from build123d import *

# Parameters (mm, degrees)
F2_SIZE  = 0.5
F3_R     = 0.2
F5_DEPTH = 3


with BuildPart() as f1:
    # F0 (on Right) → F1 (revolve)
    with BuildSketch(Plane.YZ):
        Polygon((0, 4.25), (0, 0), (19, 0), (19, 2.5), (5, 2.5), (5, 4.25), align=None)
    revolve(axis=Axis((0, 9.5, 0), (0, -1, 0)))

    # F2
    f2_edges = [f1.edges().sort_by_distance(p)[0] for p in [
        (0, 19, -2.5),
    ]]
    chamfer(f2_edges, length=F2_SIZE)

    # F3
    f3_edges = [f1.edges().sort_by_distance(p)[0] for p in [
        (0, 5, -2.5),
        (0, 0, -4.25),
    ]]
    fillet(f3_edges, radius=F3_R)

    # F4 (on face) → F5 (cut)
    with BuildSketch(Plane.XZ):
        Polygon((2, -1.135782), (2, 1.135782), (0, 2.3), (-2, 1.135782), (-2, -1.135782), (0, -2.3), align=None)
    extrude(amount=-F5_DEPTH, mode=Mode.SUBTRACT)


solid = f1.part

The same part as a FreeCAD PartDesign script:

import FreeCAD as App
import Part
import Sketcher
Q = App.Units.Quantity


def edges_at(feature, points):
    """Names of the edges that pass closest to the given points."""
    edges = feature.Shape.Edges
    near = lambda p: min(range(len(edges)), key=lambda i: edges[i].distToShape(Part.Vertex(*p))[0])
    return sorted({f"Edge{near(p) + 1}" for p in points})

doc = App.newDocument("Part")
body = doc.addObject("PartDesign::Body", "Body")

# Sketch on YZ plane
sketch1 = body.newObject("Sketcher::SketchObject", "Sketch")
sketch1.AttachmentSupport = (doc.getObject("YZ_Plane"), [""])
sketch1.MapMode = "FlatFace"
sketch1.addGeometry(Part.LineSegment(App.Vector(0, 4.2, 0), App.Vector(0, 0, 0)), False)
sketch1.addGeometry(Part.LineSegment(App.Vector(0, 0, 0), App.Vector(19, 0, 0)), False)
sketch1.addGeometry(Part.LineSegment(App.Vector(19, 0, 0), App.Vector(19, 2.5, 0)), False)
sketch1.addGeometry(Part.LineSegment(App.Vector(19, 2.5, 0), App.Vector(5, 2.5, 0)), False)
sketch1.addGeometry(Part.LineSegment(App.Vector(5, 2.5, 0), App.Vector(5, 4.2, 0)), False)
sketch1.addGeometry(Part.LineSegment(App.Vector(5, 4.2, 0), App.Vector(0, 4.2, 0)), False)
sketch1.addConstraint(Sketcher.Constraint("Coincident", 0, 2, 1, 1))
sketch1.addConstraint(Sketcher.Constraint("Coincident", 1, 2, 2, 1))
sketch1.addConstraint(Sketcher.Constraint("Coincident", 2, 2, 3, 1))
sketch1.addConstraint(Sketcher.Constraint("Coincident", 3, 2, 4, 1))
sketch1.addConstraint(Sketcher.Constraint("Coincident", 4, 2, 5, 1))
sketch1.addConstraint(Sketcher.Constraint("Coincident", 5, 2, 0, 1))
sketch1.addConstraint(Sketcher.Constraint("Vertical", 0))
sketch1.addConstraint(Sketcher.Constraint("Horizontal", 1))
sketch1.addConstraint(Sketcher.Constraint("Vertical", 2))
sketch1.addConstraint(Sketcher.Constraint("Horizontal", 3))
sketch1.addConstraint(Sketcher.Constraint("Vertical", 4))
sketch1.addConstraint(Sketcher.Constraint("Horizontal", 5))
sketch1.addConstraint(Sketcher.Constraint("Coincident", 0, 2, -1, 1))
sketch1.addConstraint(Sketcher.Constraint("DistanceX", 1, 1, 1, 2, Q("19 mm")))
sketch1.addConstraint(Sketcher.Constraint("DistanceX", 3, 2, 3, 1, Q("14 mm")))
sketch1.addConstraint(Sketcher.Constraint("DistanceY", 2, 1, 2, 2, Q("2.5 mm")))
sketch1.addConstraint(Sketcher.Constraint("DistanceY", 0, 2, 0, 1, Q("4.25 mm")))
revolution = body.newObject("PartDesign::Revolution", "Revolution")
revolution.Profile = sketch1
revolution.ReferenceAxis = (sketch1, ["H_Axis"])
revolution.Angle = 360
doc.recompute()

chamfer = body.newObject("PartDesign::Chamfer", "Chamfer")
chamfer.Base = (revolution, edges_at(revolution, [(0, 19, -2.5)]))
chamfer.Size = 0.5
doc.recompute()

fillet = body.newObject("PartDesign::Fillet", "Fillet")
fillet.Base = (chamfer, edges_at(chamfer, [(0, 5, -2.5), (0, 0, -4.25)]))
fillet.Radius = 0.2

# Sketch on XZ plane
sketch2 = body.newObject("Sketcher::SketchObject", "Sketch001")
sketch2.AttachmentSupport = (doc.getObject("XZ_Plane"), [""])
sketch2.MapMode = "FlatFace"
sketch2.addGeometry(Part.LineSegment(App.Vector(2, -1.1, 0), App.Vector(2, 1.1, 0)), False)
sketch2.addGeometry(Part.LineSegment(App.Vector(2, 1.1, 0), App.Vector(0, 2.3, 0)), False)
sketch2.addGeometry(Part.LineSegment(App.Vector(0, 2.3, 0), App.Vector(-2, 1.1, 0)), False)
sketch2.addGeometry(Part.LineSegment(App.Vector(-2, 1.1, 0), App.Vector(-2, -1.1, 0)), False)
sketch2.addGeometry(Part.LineSegment(App.Vector(-2, -1.1, 0), App.Vector(0, -2.3, 0)), False)
sketch2.addGeometry(Part.LineSegment(App.Vector(0, -2.3, 0), App.Vector(2, -1.1, 0)), False)
sketch2.addConstraint(Sketcher.Constraint("Coincident", 0, 2, 1, 1))
sketch2.addConstraint(Sketcher.Constraint("Coincident", 1, 2, 2, 1))
sketch2.addConstraint(Sketcher.Constraint("Coincident", 2, 2, 3, 1))
sketch2.addConstraint(Sketcher.Constraint("Coincident", 3, 2, 4, 1))
sketch2.addConstraint(Sketcher.Constraint("Coincident", 4, 2, 5, 1))
sketch2.addConstraint(Sketcher.Constraint("Coincident", 5, 2, 0, 1))
sketch2.addConstraint(Sketcher.Constraint("Vertical", 0))
sketch2.addConstraint(Sketcher.Constraint("Vertical", 3))
sketch2.addConstraint(Sketcher.Constraint("Symmetric", 0, 2, 3, 2, -1, 1))
sketch2.addConstraint(Sketcher.Constraint("Symmetric", 1, 2, 4, 2, -1, 1))
sketch2.addConstraint(Sketcher.Constraint("PointOnObject", 1, 2, -2))
sketch2.addConstraint(Sketcher.Constraint("Parallel", 2, 5))
sketch2.addConstraint(Sketcher.Constraint("Horizontal", 0, 2, 2, 2))
sketch2.addConstraint(Sketcher.Constraint("DistanceX", -1, 1, 0, 2, Q("2 mm")))
sketch2.addConstraint(Sketcher.Constraint("DistanceY", -1, 1, 1, 2, Q("2.3 mm")))
sketch2.addConstraint(Sketcher.Constraint("DistanceY", 0, 1, 0, 2, Q("2.271564 mm")))
pocket1 = body.newObject("PartDesign::Pocket", "Pocket")
pocket1.Profile = sketch2
pocket1.Length = 3

doc.recompute()
